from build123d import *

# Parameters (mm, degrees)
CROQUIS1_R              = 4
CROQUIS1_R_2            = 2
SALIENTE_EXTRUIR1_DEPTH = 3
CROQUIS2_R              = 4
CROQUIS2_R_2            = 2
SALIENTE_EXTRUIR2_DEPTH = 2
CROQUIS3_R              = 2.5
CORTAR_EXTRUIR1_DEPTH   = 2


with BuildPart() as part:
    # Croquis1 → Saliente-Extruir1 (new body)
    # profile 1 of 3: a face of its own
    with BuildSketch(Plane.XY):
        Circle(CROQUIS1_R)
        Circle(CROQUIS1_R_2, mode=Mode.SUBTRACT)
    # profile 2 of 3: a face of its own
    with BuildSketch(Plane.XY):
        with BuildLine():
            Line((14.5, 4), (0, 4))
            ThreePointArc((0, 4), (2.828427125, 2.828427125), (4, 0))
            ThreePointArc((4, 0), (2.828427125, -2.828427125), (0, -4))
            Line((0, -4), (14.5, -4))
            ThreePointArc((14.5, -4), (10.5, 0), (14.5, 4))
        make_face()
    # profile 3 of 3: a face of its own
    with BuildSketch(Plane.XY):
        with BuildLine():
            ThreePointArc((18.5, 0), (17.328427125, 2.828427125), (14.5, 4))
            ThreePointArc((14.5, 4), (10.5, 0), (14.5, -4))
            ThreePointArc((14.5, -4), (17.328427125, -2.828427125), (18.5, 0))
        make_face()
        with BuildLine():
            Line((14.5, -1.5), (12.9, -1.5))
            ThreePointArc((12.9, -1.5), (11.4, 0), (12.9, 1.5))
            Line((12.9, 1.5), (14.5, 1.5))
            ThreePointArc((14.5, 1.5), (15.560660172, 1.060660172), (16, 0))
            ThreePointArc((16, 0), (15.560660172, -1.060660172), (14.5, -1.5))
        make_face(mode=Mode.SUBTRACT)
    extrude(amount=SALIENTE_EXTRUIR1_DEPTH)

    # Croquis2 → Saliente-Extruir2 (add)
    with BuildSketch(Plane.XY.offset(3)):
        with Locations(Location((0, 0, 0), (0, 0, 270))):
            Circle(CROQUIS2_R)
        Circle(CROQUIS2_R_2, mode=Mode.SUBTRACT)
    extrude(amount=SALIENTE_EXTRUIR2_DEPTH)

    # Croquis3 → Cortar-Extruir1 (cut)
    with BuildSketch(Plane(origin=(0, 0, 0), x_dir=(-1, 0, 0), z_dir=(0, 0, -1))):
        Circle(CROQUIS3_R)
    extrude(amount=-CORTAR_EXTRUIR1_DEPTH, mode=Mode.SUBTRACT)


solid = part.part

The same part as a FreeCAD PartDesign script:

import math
import FreeCAD as App
import Part
import Sketcher

V = App.Vector

doc = App.newDocument("Part")
params = doc.addObject("Spreadsheet::Sheet", "Params")
for row, (alias, value) in enumerate([
    ("sketch1_diameter", "4 mm"),
    ("sketch1_radius", "4 mm"),
    ("sketch1_radius2", "1.5 mm"),
    ("sketch1_width", "14.5 mm"),
    ("sketch1_width2", "1.6 mm"),
    ("pad1_length", "3 mm"),
    ("sketch2_diameter", "8 mm"),
    ("sketch2_diameter2", "4 mm"),
    ("pad2_length", "2 mm"),
    ("sketch3_diameter", "5 mm"),
    ("pocket1_length", "2 mm"),
], start=1):
    params.set(f"A{row}", alias)
    params.set(f"B{row}", "=" + value)
    params.setAlias(f"B{row}", alias)

body = doc.addObject("PartDesign::Body", "Body")

# Sketch on XY plane
sketch1 = body.newObject("Sketcher::SketchObject", "Sketch")
sketch1.AttachmentSupport = (doc.getObject("XY_Plane"), [""])
sketch1.MapMode = "FlatFace"
sketch1.addGeometry([
    Part.ArcOfCircle(Part.Circle(V(0, 0, 0), V(0, 0, 1), 4), math.radians(90), math.radians(270)),  # 0
    Part.LineSegment(V(0, -4, 0), V(14.5, -4, 0)),  # 1
    Part.ArcOfCircle(Part.Circle(V(14.5, 0, 0), V(0, 0, 1), 4), math.radians(-90), math.radians(0)),  # 2
    Part.ArcOfCircle(Part.Circle(V(14.5, 0, 0), V(0, 0, 1), 4), math.radians(0), math.radians(90)),  # 3
    Part.LineSegment(V(14.5, 4, 0), V(0, 4, 0)),  # 4
    Part.Circle(V(0, 0, 0), V(0, 0, 1), 2),  # 5
    Part.LineSegment(V(14.5, -1.5, 0), V(12.9, -1.5, 0)),  # 6
    Part.ArcOfCircle(Part.Circle(V(12.9, 0, 0), V(0, 0, 1), 1.5), math.radians(90), math.radians(270)),  # 7
    Part.LineSegment(V(12.9, 1.5, 0), V(14.5, 1.5, 0)),  # 8
    Part.ArcOfCircle(Part.Circle(V(14.5, 0, 0), V(0, 0, 1), 1.5), math.radians(0), math.radians(90)),  # 9
    Part.ArcOfCircle(Part.Circle(V(14.5, 0, 0), V(0, 0, 1), 1.5), math.radians(-90), math.radians(0)),  # 10
], False)
sketch1.addConstraint([
    Sketcher.Constraint("Tangent", 0, 2, 1, 1),
    Sketcher.Constraint("Tangent", 1, 2, 2, 1),
    Sketcher.Constraint("Tangent", 2, 2, 3, 1),
    Sketcher.Constraint("Tangent", 3, 2, 4, 1),
    Sketcher.Constraint("Tangent", 4, 2, 0, 1),
    Sketcher.Constraint("Tangent", 6, 2, 7, 2),
    Sketcher.Constraint("Tangent", 7, 1, 8, 1),
    Sketcher.Constraint("Tangent", 8, 2, 9, 2),
    Sketcher.Constraint("Tangent", 9, 1, 10, 2),
    Sketcher.Constraint("Tangent", 10, 1, 6, 1),
    Sketcher.Constraint("Horizontal", 1),
    Sketcher.Constraint("Horizontal", 4),
    Sketcher.Constraint("Horizontal", 6),
    Sketcher.Constraint("Horizontal", 8),
    Sketcher.Constraint("Coincident", 0, 3, -1, 1),
    Sketcher.Constraint("Coincident", 5, 3, -1, 1),
    Sketcher.Constraint("Coincident", 9, 3, 2, 3),
    Sketcher.Constraint("Equal", 0, 2),
    Sketcher.Constraint("Equal", 7, 9),
    Sketcher.Constraint("PointOnObject", 2, 2, -1),
    Sketcher.Constraint("PointOnObject", 9, 1, -1),
    Sketcher.Constraint("Diameter", 5, 4.0),
    Sketcher.Constraint("Radius", 0, 4.0),
    Sketcher.Constraint("Radius", 7, 1.5),
    Sketcher.Constraint("DistanceX", 1, 1, 1, 2, 14.5),
    Sketcher.Constraint("DistanceX", 6, 2, 6, 1, 1.6),
])
sketch1.setExpression("Constraints[21]", "Params.sketch1_diameter")
sketch1.setExpression("Constraints[22]", "Params.sketch1_radius")
sketch1.setExpression("Constraints[23]", "Params.sketch1_radius2")
sketch1.setExpression("Constraints[24]", "Params.sketch1_width")
sketch1.setExpression("Constraints[25]", "Params.sketch1_width2")
pad1 = body.newObject("PartDesign::Pad", "Pad")
pad1.Profile = sketch1
pad1.setExpression("Length", "Params.pad1_length")

# Sketch on XY plane
sketch2 = body.newObject("Sketcher::SketchObject", "Sketch001")
sketch2.AttachmentSupport = (doc.getObject("XY_Plane"), [""])
sketch2.MapMode = "FlatFace"
sketch2.AttachmentOffset = App.Placement(V(0, 0, 3), App.Rotation())
sketch2.addGeometry([
    Part.Circle(V(0, 0, 0), V(0, 0, 1), 4),
    Part.Circle(V(0, 0, 0), V(0, 0, 1), 2),
], False)
sketch2.addConstraint([
    Sketcher.Constraint("Coincident", 0, 3, -1, 1),
    Sketcher.Constraint("Coincident", 1, 3, -1, 1),
    Sketcher.Constraint("Diameter", 0, 8.0),
    Sketcher.Constraint("Diameter", 1, 4.0),
])
sketch2.setExpression("Constraints[2]", "Params.sketch2_diameter")
sketch2.setExpression("Constraints[3]", "Params.sketch2_diameter2")
pad2 = body.newObject("PartDesign::Pad", "Pad001")
pad2.Profile = sketch2
pad2.setExpression("Length", "Params.pad2_length")

# Sketch on XY plane
sketch3 = body.newObject("Sketcher::SketchObject", "Sketch002")
sketch3.AttachmentSupport = (doc.getObject("XY_Plane"), [""])
sketch3.MapMode = "FlatFace"
sketch3.addGeometry(Part.Circle(V(0, 0, 0), V(0, 0, 1), 2.5), False)
sketch3.addConstraint([
    Sketcher.Constraint("Coincident", 0, 3, -1, 1),
    Sketcher.Constraint("Diameter", 0, 5.0),
])
sketch3.setExpression("Constraints[1]", "Params.sketch3_diameter")
pocket1 = body.newObject("PartDesign::Pocket", "Pocket")
pocket1.Profile = sketch3
pocket1.setExpression("Length", "Params.pocket1_length")
pocket1.Reversed = True

doc.recompute()
